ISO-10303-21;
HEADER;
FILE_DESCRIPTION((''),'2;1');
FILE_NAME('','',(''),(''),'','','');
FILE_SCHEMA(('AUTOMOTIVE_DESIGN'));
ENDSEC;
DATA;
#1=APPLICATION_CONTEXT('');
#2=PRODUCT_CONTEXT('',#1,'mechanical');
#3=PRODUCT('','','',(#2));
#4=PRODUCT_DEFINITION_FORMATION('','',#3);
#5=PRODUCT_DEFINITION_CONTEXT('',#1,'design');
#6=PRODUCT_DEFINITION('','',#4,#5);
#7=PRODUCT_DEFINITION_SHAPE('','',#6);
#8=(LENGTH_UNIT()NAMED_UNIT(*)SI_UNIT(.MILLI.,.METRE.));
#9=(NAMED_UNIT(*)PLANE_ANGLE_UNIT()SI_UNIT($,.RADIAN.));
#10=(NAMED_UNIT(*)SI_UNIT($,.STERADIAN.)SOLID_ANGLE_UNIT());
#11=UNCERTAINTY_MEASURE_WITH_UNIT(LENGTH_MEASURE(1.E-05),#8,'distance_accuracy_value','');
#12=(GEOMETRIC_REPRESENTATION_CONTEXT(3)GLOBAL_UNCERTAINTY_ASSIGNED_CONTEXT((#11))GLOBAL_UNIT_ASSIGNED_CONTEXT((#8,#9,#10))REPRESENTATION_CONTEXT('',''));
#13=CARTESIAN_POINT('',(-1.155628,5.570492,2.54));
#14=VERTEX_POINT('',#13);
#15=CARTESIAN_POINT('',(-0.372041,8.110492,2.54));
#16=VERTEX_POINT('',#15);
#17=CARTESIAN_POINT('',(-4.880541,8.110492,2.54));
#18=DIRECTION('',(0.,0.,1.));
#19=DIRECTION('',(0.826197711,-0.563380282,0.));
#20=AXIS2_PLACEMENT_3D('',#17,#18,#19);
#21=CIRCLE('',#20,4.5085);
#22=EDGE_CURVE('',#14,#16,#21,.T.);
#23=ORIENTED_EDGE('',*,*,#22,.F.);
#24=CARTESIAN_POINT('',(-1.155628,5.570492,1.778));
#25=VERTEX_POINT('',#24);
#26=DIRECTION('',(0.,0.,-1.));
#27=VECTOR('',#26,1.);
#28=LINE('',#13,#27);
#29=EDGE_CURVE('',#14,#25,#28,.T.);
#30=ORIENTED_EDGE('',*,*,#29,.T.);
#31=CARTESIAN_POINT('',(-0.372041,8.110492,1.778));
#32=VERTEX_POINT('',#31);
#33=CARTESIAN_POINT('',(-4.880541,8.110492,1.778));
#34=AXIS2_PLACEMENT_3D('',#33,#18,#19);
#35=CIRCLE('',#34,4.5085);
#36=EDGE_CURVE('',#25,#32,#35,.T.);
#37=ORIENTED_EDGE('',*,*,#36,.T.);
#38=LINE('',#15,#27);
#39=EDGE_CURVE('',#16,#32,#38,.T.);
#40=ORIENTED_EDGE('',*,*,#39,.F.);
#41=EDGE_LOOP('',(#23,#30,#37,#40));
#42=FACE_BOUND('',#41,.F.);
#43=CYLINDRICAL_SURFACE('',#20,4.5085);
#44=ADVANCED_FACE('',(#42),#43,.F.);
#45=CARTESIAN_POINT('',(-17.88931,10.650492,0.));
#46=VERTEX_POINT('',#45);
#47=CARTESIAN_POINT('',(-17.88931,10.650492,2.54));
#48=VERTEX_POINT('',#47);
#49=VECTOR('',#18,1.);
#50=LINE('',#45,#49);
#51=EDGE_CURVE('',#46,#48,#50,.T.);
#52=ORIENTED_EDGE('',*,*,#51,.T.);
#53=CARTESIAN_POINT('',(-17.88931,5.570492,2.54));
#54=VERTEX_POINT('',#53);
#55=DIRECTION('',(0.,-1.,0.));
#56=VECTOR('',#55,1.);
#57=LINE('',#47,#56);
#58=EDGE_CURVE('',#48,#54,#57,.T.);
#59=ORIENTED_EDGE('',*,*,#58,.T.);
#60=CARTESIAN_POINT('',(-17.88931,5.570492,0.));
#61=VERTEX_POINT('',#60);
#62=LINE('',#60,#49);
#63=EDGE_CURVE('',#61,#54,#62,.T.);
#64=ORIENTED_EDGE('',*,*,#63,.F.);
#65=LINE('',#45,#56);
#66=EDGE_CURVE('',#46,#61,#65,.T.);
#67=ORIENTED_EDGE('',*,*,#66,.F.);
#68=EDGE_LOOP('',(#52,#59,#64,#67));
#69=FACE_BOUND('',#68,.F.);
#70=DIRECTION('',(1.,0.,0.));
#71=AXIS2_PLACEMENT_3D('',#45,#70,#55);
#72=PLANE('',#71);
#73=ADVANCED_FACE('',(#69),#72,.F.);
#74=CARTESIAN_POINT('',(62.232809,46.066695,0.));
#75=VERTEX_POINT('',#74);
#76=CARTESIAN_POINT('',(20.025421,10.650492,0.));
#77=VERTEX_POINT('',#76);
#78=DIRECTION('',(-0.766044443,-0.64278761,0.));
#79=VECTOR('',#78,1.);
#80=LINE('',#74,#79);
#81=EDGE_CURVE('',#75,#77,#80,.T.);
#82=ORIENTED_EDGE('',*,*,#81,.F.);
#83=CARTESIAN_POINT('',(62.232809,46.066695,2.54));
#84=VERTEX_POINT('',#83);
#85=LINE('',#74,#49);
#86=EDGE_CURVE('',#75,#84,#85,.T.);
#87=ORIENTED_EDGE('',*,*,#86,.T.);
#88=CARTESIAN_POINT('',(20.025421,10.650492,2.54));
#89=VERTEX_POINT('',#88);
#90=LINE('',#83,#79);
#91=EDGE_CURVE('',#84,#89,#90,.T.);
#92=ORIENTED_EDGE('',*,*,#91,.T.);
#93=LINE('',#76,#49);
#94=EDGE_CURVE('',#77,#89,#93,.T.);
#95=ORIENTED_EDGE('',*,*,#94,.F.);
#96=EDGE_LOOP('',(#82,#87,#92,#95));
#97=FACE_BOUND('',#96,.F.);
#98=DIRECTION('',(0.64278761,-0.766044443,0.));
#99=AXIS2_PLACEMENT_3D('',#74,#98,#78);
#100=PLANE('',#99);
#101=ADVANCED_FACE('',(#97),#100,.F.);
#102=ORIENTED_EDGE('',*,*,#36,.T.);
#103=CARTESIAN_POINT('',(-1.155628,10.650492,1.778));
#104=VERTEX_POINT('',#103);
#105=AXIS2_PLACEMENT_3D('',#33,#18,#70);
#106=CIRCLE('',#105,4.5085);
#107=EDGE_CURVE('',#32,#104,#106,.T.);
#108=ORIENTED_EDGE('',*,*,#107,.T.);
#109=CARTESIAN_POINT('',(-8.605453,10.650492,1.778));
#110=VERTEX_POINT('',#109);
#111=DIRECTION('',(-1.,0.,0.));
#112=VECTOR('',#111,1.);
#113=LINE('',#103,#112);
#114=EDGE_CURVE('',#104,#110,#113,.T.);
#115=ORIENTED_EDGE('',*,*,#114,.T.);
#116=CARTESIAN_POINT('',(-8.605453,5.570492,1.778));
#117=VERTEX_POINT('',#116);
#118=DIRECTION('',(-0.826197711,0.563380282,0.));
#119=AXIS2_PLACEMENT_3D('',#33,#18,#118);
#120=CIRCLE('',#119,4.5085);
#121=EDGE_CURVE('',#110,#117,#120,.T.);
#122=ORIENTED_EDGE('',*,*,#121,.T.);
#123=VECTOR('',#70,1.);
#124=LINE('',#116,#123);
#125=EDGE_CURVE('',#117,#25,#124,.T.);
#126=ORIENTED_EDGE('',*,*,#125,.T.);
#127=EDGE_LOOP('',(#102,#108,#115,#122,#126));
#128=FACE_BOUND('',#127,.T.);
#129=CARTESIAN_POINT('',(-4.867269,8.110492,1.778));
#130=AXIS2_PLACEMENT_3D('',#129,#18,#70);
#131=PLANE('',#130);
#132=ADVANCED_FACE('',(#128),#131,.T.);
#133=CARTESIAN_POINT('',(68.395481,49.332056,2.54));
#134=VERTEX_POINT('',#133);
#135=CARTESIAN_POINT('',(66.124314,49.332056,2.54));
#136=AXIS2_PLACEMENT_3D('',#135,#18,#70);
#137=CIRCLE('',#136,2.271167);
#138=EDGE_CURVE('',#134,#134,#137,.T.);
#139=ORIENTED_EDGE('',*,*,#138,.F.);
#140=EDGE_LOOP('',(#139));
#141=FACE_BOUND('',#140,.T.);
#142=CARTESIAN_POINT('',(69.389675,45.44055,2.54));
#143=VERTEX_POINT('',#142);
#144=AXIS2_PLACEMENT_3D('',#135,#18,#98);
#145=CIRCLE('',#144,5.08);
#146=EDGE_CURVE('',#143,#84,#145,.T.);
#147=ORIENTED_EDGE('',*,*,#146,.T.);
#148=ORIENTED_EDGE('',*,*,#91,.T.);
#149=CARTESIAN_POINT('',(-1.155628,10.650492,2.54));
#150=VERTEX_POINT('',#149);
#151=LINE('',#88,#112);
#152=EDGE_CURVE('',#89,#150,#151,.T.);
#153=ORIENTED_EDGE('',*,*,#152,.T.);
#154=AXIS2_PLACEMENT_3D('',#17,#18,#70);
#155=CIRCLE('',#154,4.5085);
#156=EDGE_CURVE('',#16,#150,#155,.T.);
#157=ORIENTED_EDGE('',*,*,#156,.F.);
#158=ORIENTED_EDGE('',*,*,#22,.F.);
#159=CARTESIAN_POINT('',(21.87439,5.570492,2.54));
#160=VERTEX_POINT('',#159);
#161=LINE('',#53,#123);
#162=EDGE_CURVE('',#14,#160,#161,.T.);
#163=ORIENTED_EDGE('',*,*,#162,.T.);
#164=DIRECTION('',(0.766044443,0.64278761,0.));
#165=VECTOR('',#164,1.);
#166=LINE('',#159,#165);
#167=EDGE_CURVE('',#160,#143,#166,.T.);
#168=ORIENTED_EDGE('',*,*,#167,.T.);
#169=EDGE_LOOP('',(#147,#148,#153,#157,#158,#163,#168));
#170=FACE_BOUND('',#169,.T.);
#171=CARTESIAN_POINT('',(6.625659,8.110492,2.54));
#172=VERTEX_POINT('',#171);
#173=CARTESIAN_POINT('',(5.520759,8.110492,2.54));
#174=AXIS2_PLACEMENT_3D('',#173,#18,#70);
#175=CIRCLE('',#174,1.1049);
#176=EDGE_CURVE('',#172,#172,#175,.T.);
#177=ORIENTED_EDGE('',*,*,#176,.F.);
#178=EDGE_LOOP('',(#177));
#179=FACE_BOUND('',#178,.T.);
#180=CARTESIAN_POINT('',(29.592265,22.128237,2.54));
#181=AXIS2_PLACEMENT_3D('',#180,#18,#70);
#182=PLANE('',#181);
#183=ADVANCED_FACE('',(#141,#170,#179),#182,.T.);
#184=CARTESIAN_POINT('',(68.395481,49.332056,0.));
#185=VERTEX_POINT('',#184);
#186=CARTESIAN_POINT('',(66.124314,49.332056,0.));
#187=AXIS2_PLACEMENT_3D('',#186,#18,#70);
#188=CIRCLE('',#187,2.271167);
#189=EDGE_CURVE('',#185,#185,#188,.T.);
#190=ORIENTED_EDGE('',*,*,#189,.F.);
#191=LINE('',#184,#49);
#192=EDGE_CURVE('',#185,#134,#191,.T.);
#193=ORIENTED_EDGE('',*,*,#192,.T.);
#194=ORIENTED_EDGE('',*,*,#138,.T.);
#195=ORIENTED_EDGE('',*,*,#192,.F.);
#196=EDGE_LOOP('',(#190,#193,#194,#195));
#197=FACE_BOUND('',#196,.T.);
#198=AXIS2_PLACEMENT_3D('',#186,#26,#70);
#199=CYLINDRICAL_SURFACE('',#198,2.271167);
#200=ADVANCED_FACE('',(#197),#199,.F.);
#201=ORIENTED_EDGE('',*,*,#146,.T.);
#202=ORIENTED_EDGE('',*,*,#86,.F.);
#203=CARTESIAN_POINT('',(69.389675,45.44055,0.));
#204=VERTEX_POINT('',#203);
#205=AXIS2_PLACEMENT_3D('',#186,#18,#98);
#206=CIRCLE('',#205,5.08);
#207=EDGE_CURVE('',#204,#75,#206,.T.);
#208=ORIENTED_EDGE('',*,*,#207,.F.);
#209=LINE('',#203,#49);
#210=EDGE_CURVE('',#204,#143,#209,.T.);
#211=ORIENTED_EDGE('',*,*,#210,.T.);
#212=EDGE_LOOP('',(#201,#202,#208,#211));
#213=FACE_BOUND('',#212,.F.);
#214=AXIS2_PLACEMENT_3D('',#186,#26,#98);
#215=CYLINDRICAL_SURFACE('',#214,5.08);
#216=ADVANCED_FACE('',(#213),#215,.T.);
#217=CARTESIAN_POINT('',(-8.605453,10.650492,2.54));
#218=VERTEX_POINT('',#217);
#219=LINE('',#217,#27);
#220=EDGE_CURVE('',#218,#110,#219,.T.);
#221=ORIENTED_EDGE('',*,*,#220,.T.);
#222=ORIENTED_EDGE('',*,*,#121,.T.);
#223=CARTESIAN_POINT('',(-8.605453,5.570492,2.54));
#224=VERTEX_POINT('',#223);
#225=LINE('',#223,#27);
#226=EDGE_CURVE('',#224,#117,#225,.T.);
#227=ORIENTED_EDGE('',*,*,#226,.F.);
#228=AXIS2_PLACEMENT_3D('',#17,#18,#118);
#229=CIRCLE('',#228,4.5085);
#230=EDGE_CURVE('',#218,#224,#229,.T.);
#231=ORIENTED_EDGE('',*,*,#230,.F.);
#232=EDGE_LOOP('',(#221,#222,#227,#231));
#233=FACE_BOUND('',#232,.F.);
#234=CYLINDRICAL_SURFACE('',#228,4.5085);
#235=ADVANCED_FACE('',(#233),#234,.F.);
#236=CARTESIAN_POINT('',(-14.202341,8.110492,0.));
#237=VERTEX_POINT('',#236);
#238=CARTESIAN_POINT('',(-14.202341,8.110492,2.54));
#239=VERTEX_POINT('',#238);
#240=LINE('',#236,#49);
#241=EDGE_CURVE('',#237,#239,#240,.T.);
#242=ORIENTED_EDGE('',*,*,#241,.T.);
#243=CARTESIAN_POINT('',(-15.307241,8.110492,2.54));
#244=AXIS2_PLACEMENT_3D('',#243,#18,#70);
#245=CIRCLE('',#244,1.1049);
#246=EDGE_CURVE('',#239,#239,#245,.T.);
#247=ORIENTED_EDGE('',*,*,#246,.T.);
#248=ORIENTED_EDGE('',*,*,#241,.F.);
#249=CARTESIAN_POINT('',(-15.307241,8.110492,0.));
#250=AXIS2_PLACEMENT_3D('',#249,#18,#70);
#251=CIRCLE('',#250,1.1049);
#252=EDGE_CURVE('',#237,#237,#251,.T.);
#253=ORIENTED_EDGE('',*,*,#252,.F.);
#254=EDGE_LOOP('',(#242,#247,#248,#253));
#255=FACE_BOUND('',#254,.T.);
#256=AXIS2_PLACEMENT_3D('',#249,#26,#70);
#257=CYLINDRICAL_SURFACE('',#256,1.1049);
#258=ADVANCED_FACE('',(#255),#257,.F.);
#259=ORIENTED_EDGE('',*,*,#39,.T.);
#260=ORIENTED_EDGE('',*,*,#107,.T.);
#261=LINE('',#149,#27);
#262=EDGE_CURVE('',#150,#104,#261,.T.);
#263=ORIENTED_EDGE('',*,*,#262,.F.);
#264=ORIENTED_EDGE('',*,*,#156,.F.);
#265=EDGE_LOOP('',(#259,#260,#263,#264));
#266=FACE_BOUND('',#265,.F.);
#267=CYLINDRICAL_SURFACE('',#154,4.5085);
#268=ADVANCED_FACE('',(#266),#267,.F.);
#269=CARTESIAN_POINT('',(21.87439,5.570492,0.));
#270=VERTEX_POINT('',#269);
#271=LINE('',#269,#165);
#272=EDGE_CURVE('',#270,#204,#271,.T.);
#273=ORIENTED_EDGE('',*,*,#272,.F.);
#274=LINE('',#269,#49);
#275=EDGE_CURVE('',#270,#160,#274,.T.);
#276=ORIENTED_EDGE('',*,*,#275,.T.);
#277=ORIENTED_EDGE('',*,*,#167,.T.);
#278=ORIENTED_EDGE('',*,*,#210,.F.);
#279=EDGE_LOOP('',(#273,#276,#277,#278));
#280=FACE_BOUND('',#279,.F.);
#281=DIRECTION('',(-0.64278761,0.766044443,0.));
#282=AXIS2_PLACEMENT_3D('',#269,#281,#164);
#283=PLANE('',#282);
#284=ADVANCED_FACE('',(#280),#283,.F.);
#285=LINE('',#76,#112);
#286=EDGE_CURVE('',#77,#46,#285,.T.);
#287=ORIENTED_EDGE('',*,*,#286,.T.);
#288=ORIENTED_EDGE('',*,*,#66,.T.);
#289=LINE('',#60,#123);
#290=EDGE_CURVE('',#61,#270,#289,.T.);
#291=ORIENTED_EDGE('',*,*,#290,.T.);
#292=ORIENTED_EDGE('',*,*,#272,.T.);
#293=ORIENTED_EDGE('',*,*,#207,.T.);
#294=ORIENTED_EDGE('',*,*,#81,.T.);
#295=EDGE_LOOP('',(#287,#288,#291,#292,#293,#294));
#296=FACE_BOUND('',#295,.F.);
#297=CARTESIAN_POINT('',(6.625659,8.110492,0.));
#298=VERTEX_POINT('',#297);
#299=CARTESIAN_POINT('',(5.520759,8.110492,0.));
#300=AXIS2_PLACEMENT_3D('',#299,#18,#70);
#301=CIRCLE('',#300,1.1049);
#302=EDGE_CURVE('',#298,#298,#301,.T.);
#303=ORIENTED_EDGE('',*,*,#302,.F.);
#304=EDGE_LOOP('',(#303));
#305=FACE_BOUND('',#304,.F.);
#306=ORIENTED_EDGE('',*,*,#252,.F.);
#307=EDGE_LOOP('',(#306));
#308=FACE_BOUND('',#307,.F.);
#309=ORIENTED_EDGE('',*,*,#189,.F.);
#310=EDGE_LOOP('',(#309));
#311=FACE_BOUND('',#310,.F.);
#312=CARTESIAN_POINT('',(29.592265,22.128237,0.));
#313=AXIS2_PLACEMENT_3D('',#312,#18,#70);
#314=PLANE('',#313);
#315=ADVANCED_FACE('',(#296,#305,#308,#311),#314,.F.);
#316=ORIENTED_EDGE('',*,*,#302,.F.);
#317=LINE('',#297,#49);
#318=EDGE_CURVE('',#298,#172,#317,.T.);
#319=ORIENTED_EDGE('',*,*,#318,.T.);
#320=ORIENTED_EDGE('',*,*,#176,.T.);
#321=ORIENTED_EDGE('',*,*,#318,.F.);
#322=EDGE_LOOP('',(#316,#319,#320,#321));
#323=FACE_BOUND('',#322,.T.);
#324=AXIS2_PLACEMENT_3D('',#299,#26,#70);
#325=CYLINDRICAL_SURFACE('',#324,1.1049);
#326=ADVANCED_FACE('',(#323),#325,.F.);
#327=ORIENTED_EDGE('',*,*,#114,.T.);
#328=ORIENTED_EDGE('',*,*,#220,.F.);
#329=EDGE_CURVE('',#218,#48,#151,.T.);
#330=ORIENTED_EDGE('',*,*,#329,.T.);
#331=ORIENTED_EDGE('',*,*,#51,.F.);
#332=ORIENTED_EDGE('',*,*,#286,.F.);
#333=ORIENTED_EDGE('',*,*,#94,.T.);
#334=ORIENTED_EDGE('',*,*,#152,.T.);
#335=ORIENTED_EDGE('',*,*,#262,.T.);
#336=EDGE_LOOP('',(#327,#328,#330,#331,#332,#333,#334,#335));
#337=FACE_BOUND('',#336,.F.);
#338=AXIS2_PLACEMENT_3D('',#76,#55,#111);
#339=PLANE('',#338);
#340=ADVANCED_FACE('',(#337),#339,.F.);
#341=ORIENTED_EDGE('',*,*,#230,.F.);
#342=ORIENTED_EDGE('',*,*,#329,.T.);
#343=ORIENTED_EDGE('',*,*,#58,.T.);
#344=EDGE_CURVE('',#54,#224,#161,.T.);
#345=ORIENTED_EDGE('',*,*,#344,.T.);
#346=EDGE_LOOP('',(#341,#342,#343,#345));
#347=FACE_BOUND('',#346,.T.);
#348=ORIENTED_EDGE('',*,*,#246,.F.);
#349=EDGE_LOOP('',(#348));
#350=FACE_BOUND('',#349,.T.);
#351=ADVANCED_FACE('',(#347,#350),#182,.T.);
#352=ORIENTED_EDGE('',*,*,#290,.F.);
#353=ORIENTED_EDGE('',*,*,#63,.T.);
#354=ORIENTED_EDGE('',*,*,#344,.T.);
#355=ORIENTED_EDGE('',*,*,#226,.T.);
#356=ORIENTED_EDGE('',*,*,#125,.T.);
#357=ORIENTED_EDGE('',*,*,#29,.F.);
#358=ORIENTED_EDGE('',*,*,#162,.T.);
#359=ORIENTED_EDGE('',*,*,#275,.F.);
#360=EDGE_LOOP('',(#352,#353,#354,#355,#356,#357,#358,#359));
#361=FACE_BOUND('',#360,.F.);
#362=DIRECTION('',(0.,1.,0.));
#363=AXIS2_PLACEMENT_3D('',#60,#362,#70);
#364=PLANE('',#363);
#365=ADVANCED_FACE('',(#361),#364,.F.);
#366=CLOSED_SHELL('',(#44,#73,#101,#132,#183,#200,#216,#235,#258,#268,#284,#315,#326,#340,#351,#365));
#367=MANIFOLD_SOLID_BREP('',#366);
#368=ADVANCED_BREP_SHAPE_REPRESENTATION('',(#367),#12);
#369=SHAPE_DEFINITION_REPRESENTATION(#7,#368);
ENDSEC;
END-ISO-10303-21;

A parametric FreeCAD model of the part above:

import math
import FreeCAD as App
import Part
import Sketcher
Q = App.Units.Quantity

doc = App.newDocument("Part")
body = doc.addObject("PartDesign::Body", "Body")

# Sketch on XY plane
sketch1 = body.newObject("Sketcher::SketchObject", "Sketch")
sketch1.AttachmentSupport = (doc.getObject("XY_Plane"), [""])
sketch1.MapMode = "FlatFace"
sketch1.addGeometry([
    Part.LineSegment(App.Vector(20, 10.7, 0), App.Vector(-17.9, 10.7, 0)),  # 0
    Part.LineSegment(App.Vector(-17.9, 10.7, 0), App.Vector(-17.9, 5.6, 0)),  # 1
    Part.LineSegment(App.Vector(-17.9, 5.6, 0), App.Vector(21.9, 5.6, 0)),  # 2
    Part.LineSegment(App.Vector(21.9, 5.6, 0), App.Vector(69.4, 45.4, 0)),  # 3
    Part.ArcOfCircle(Part.Circle(App.Vector(66.1, 49.3, 0), App.Vector(0, 0, 1), 5.1), math.radians(-50), math.radians(220)),  # 4
    Part.LineSegment(App.Vector(62.2, 46.1, 0), App.Vector(20, 10.7, 0)),  # 5
    Part.Circle(App.Vector(-15.3, 8.1, 0), App.Vector(0, 0, 1), 1.1),  # 6
    Part.Circle(App.Vector(5.5, 8.1, 0), App.Vector(0, 0, 1), 1.1),  # 7
    Part.Circle(App.Vector(66.1, 49.3, 0), App.Vector(0, 0, 1), 2.3),  # 8
], False)
sketch1.addConstraint([
    Sketcher.Constraint("Coincident", 0, 2, 1, 1),
    Sketcher.Constraint("Coincident", 1, 2, 2, 1),
    Sketcher.Constraint("Coincident", 2, 2, 3, 1),
    Sketcher.Constraint("Tangent", 3, 2, 4, 1),
    Sketcher.Constraint("Coincident", 4, 2, 5, 1),
    Sketcher.Constraint("Coincident", 5, 2, 0, 1),
    Sketcher.Constraint("Horizontal", 0),
    Sketcher.Constraint("Vertical", 1),
    Sketcher.Constraint("Horizontal", 2),
    Sketcher.Constraint("Coincident", 8, 3, 4, 3),
    Sketcher.Constraint("Equal", 6, 7),
    Sketcher.Constraint("Parallel", 3, 5),
    Sketcher.Constraint("Horizontal", 6, 3, 7, 3),
    Sketcher.Constraint("Radius", 4, Q("0.2 in")),
    Sketcher.Constraint("Diameter", 6, Q("0.087 in")),
    Sketcher.Constraint("DistanceY", 1, 2, 1, 1, Q("0.2 in")),
    Sketcher.Constraint("Angle", 3, Q("40 deg")),
    Sketcher.Constraint("DistanceY", 6, 3, 0, 2, Q("0.1 in")),
    Sketcher.Constraint("DistanceX", 6, 3, 7, 3, Q("0.82 in")),
    Sketcher.Constraint("Distance", 3, Q("2.442 in")),
    Sketcher.Constraint("DistanceX", 2, 1, 2, 2, Q("1.5655 in")),
    Sketcher.Constraint("Diameter", 8, Q("4.542333 mm")),
    Sketcher.Constraint("DistanceX", 0, 2, 0, 1, Q("37.914731 mm")),
    Sketcher.Constraint("DistanceX", 6, 3, -1, 1, Q("15.307241 mm")),
    Sketcher.Constraint("DistanceY", -1, 1, 6, 3, Q("8.110492 mm")),
    Sketcher.Constraint("DistanceX", 0, 2, -1, 1, Q("17.88931 mm")),
])
pad1 = body.newObject("PartDesign::Pad", "Pad")
pad1.Profile = sketch1
pad1.Length = Q("0.1 in")

# Sketch on XY plane
sketch2 = body.newObject("Sketcher::SketchObject", "Sketch001")
sketch2.AttachmentSupport = (doc.getObject("XY_Plane"), [""])
sketch2.MapMode = "FlatFace"
sketch2.AttachmentOffset = App.Placement(App.Vector(0, 0, 0.1 * 25.4), App.Rotation())
sketch2.addGeometry([
    Part.ArcOfCircle(Part.Circle(App.Vector(-4.9, 8.1, 0), App.Vector(0, 0, 1), 4.5), math.radians(-34), math.radians(0)),  # 0
    Part.ArcOfCircle(Part.Circle(App.Vector(-4.9, 8.1, 0), App.Vector(0, 0, 1), 4.5), math.radians(0), math.radians(34)),  # 1
    Part.LineSegment(App.Vector(-1.2, 10.7, 0), App.Vector(-8.6, 10.7, 0)),  # 2
    Part.ArcOfCircle(Part.Circle(App.Vector(-4.9, 8.1, 0), App.Vector(0, 0, 1), 4.5), math.radians(146), math.radians(214)),  # 3
    Part.LineSegment(App.Vector(-8.6, 5.6, 0), App.Vector(-1.2, 5.6, 0)),  # 4
], False)
sketch2.addConstraint([
    Sketcher.Constraint("Tangent", 0, 2, 1, 1),
    Sketcher.Constraint("Coincident", 1, 2, 2, 1),
    Sketcher.Constraint("Coincident", 2, 2, 3, 1),
    Sketcher.Constraint("Coincident", 3, 2, 4, 1),
    Sketcher.Constraint("Coincident", 4, 2, 0, 1),
    Sketcher.Constraint("Horizontal", 2),
    Sketcher.Constraint("Horizontal", 4),
    Sketcher.Constraint("Coincident", 3, 3, 0, 3),
    Sketcher.Constraint("Equal", 0, 1),
    Sketcher.Constraint("Equal", 1, 3),
    Sketcher.Constraint("Horizontal", 3, 3, 0, 2),
    Sketcher.Constraint("Vertical", 2, 2, 3, 2),
    Sketcher.Constraint("Radius", 0, Q("0.1775 in")),
    Sketcher.Constraint("DistanceY", 0, 2, 1, 2, Q("0.1 in")),
    Sketcher.Constraint("DistanceX", 0, 3, -1, 1, Q("4.880541 mm")),
    Sketcher.Constraint("DistanceY", -1, 1, 0, 3, Q("8.110492 mm")),
])
pocket1 = body.newObject("PartDesign::Pocket", "Pocket")
pocket1.Profile = sketch2
pocket1.Length = Q("0.03 in")

doc.recompute()
